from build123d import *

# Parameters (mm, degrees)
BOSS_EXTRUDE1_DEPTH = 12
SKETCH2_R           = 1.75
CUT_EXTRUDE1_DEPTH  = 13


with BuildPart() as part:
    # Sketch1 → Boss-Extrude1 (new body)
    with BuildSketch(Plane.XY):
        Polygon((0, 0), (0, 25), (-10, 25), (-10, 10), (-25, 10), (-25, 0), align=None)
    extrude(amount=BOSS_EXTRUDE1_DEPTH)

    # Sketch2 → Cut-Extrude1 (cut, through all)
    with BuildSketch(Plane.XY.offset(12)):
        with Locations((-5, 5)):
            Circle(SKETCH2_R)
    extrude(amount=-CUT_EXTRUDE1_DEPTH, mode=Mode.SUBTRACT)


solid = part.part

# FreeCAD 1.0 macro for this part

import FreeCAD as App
import Part
import Sketcher
from FreeCAD import Vector
Q = App.Units.Quantity


def add_polygon(sketch, points):
    """Adds a closed chain of lines whose ends are joined by coincident constraints."""
    first, n = sketch.GeometryCount, len(points)
    for a, b in zip(points, points[1:] + points[:1]):
        sketch.addGeometry(Part.LineSegment(App.Vector(*a, 0), App.Vector(*b, 0)), False)
    for i in range(n):
        sketch.addConstraint(Sketcher.Constraint("Coincident", first + i, 2, first + (i + 1) % n, 1))

doc = App.newDocument("Part")
body = doc.addObject("PartDesign::Body", "Body")

sketch1 = body.newObject("Sketcher::SketchObject", "Sketch")
sketch1.AttachmentSupport = (doc.getObject("XY_Plane"), [""])
sketch1.MapMode = "FlatFace"
add_polygon(sketch1, [(0, 0), (0, 25), (-10, 25), (-10, 10), (-25, 10), (-25, 0)])
sketch1.addConstraint(Sketcher.Constraint("Vertical", 0))
sketch1.addConstraint(Sketcher.Constraint("Horizontal", 1))
sketch1.addConstraint(Sketcher.Constraint("Vertical", 2))
sketch1.addConstraint(Sketcher.Constraint("Horizontal", 3))
sketch1.addConstraint(Sketcher.Constraint("Vertical", 4))
sketch1.addConstraint(Sketcher.Constraint("Horizontal", 5))
sketch1.addConstraint(Sketcher.Constraint("Coincident", 5, 2, -1, 1))
sketch1.addConstraint(Sketcher.Constraint("Equal", 5, 0))
sketch1.addConstraint(Sketcher.Constraint("Equal", 3, 2))
sketch1.addConstraint(Sketcher.Constraint("DistanceX", 1, 2, 1, 1, Q("10 mm")))
sketch1.addConstraint(Sketcher.Constraint("DistanceX", 3, 2, 3, 1, Q("15 mm")))
pad1 = body.newObject("PartDesign::Pad", "Pad")
pad1.Profile = sketch1
pad1.Length = 12

sketch2 = body.newObject("Sketcher::SketchObject", "Sketch001")
sketch2.AttachmentSupport = (doc.getObject("XY_Plane"), [""])
sketch2.MapMode = "FlatFace"
sketch2.AttachmentOffset = App.Placement(Vector(0, 0, 12), App.Rotation())
sketch2.addGeometry(Part.Circle(Vector(-5, 5, 0), Vector(0, 0, 1), 1.8), False)
sketch2.addConstraint(Sketcher.Constraint("Diameter", 0, Q("3.5 mm")))
sketch2.addConstraint(Sketcher.Constraint("DistanceX", 0, 3, -1, 1, Q("5 mm")))
sketch2.addConstraint(Sketcher.Constraint("DistanceY", -1, 1, 0, 3, Q("5 mm")))
pocket1 = body.newObject("PartDesign::Pocket", "Pocket")
pocket1.Profile = sketch2
pocket1.Type = "ThroughAll"

doc.recompute()
